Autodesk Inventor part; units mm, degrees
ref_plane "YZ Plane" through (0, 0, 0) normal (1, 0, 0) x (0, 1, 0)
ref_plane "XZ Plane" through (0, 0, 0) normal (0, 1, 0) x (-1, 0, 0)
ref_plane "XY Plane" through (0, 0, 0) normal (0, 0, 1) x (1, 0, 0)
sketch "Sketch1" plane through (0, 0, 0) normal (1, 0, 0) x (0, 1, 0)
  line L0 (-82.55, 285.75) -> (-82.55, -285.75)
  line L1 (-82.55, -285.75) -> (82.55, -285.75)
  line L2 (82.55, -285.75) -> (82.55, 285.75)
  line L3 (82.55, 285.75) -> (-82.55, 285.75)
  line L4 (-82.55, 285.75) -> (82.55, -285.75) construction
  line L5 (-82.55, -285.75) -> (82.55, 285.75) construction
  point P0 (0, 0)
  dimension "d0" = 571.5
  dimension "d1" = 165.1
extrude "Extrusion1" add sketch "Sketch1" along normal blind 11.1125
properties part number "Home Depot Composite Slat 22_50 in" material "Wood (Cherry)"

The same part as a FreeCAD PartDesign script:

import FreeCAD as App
import Part
import Sketcher
Q = App.Units.Quantity


def add_polygon(sketch, points):
    """Adds a closed chain of lines whose ends are joined by coincident constraints."""
    first, n = sketch.GeometryCount, len(points)
    for a, b in zip(points, points[1:] + points[:1]):
        sketch.addGeometry(Part.LineSegment(App.Vector(*a, 0), App.Vector(*b, 0)), False)
    for i in range(n):
        sketch.addConstraint(Sketcher.Constraint("Coincident", first + i, 2, first + (i + 1) % n, 1))

doc = App.newDocument("Part")
body = doc.addObject("PartDesign::Body", "Body")

sketch1 = body.newObject("Sketcher::SketchObject", "Sketch")
sketch1.AttachmentSupport = (doc.getObject("YZ_Plane"), [""])
sketch1.MapMode = "FlatFace"
add_polygon(sketch1, [(83, 286), (-83, 286), (-83, -286), (83, -286)])
sketch1.addConstraint([
    Sketcher.Constraint("Horizontal", 0),
    Sketcher.Constraint("Vertical", 1),
    Sketcher.Constraint("Horizontal", 2),
    Sketcher.Constraint("Vertical", 3),
    Sketcher.Constraint("Symmetric", 0, 2, 2, 2, -1, 1),
    Sketcher.Constraint("DistanceX", 0, 2, 0, 1, Q("6.5 in")),
    Sketcher.Constraint("DistanceY", 1, 2, 1, 1, Q("22.5 in")),
])
pad1 = body.newObject("PartDesign::Pad", "Pad")
pad1.Profile = sketch1
pad1.Length = Q("0.4375 in")

doc.recompute()
